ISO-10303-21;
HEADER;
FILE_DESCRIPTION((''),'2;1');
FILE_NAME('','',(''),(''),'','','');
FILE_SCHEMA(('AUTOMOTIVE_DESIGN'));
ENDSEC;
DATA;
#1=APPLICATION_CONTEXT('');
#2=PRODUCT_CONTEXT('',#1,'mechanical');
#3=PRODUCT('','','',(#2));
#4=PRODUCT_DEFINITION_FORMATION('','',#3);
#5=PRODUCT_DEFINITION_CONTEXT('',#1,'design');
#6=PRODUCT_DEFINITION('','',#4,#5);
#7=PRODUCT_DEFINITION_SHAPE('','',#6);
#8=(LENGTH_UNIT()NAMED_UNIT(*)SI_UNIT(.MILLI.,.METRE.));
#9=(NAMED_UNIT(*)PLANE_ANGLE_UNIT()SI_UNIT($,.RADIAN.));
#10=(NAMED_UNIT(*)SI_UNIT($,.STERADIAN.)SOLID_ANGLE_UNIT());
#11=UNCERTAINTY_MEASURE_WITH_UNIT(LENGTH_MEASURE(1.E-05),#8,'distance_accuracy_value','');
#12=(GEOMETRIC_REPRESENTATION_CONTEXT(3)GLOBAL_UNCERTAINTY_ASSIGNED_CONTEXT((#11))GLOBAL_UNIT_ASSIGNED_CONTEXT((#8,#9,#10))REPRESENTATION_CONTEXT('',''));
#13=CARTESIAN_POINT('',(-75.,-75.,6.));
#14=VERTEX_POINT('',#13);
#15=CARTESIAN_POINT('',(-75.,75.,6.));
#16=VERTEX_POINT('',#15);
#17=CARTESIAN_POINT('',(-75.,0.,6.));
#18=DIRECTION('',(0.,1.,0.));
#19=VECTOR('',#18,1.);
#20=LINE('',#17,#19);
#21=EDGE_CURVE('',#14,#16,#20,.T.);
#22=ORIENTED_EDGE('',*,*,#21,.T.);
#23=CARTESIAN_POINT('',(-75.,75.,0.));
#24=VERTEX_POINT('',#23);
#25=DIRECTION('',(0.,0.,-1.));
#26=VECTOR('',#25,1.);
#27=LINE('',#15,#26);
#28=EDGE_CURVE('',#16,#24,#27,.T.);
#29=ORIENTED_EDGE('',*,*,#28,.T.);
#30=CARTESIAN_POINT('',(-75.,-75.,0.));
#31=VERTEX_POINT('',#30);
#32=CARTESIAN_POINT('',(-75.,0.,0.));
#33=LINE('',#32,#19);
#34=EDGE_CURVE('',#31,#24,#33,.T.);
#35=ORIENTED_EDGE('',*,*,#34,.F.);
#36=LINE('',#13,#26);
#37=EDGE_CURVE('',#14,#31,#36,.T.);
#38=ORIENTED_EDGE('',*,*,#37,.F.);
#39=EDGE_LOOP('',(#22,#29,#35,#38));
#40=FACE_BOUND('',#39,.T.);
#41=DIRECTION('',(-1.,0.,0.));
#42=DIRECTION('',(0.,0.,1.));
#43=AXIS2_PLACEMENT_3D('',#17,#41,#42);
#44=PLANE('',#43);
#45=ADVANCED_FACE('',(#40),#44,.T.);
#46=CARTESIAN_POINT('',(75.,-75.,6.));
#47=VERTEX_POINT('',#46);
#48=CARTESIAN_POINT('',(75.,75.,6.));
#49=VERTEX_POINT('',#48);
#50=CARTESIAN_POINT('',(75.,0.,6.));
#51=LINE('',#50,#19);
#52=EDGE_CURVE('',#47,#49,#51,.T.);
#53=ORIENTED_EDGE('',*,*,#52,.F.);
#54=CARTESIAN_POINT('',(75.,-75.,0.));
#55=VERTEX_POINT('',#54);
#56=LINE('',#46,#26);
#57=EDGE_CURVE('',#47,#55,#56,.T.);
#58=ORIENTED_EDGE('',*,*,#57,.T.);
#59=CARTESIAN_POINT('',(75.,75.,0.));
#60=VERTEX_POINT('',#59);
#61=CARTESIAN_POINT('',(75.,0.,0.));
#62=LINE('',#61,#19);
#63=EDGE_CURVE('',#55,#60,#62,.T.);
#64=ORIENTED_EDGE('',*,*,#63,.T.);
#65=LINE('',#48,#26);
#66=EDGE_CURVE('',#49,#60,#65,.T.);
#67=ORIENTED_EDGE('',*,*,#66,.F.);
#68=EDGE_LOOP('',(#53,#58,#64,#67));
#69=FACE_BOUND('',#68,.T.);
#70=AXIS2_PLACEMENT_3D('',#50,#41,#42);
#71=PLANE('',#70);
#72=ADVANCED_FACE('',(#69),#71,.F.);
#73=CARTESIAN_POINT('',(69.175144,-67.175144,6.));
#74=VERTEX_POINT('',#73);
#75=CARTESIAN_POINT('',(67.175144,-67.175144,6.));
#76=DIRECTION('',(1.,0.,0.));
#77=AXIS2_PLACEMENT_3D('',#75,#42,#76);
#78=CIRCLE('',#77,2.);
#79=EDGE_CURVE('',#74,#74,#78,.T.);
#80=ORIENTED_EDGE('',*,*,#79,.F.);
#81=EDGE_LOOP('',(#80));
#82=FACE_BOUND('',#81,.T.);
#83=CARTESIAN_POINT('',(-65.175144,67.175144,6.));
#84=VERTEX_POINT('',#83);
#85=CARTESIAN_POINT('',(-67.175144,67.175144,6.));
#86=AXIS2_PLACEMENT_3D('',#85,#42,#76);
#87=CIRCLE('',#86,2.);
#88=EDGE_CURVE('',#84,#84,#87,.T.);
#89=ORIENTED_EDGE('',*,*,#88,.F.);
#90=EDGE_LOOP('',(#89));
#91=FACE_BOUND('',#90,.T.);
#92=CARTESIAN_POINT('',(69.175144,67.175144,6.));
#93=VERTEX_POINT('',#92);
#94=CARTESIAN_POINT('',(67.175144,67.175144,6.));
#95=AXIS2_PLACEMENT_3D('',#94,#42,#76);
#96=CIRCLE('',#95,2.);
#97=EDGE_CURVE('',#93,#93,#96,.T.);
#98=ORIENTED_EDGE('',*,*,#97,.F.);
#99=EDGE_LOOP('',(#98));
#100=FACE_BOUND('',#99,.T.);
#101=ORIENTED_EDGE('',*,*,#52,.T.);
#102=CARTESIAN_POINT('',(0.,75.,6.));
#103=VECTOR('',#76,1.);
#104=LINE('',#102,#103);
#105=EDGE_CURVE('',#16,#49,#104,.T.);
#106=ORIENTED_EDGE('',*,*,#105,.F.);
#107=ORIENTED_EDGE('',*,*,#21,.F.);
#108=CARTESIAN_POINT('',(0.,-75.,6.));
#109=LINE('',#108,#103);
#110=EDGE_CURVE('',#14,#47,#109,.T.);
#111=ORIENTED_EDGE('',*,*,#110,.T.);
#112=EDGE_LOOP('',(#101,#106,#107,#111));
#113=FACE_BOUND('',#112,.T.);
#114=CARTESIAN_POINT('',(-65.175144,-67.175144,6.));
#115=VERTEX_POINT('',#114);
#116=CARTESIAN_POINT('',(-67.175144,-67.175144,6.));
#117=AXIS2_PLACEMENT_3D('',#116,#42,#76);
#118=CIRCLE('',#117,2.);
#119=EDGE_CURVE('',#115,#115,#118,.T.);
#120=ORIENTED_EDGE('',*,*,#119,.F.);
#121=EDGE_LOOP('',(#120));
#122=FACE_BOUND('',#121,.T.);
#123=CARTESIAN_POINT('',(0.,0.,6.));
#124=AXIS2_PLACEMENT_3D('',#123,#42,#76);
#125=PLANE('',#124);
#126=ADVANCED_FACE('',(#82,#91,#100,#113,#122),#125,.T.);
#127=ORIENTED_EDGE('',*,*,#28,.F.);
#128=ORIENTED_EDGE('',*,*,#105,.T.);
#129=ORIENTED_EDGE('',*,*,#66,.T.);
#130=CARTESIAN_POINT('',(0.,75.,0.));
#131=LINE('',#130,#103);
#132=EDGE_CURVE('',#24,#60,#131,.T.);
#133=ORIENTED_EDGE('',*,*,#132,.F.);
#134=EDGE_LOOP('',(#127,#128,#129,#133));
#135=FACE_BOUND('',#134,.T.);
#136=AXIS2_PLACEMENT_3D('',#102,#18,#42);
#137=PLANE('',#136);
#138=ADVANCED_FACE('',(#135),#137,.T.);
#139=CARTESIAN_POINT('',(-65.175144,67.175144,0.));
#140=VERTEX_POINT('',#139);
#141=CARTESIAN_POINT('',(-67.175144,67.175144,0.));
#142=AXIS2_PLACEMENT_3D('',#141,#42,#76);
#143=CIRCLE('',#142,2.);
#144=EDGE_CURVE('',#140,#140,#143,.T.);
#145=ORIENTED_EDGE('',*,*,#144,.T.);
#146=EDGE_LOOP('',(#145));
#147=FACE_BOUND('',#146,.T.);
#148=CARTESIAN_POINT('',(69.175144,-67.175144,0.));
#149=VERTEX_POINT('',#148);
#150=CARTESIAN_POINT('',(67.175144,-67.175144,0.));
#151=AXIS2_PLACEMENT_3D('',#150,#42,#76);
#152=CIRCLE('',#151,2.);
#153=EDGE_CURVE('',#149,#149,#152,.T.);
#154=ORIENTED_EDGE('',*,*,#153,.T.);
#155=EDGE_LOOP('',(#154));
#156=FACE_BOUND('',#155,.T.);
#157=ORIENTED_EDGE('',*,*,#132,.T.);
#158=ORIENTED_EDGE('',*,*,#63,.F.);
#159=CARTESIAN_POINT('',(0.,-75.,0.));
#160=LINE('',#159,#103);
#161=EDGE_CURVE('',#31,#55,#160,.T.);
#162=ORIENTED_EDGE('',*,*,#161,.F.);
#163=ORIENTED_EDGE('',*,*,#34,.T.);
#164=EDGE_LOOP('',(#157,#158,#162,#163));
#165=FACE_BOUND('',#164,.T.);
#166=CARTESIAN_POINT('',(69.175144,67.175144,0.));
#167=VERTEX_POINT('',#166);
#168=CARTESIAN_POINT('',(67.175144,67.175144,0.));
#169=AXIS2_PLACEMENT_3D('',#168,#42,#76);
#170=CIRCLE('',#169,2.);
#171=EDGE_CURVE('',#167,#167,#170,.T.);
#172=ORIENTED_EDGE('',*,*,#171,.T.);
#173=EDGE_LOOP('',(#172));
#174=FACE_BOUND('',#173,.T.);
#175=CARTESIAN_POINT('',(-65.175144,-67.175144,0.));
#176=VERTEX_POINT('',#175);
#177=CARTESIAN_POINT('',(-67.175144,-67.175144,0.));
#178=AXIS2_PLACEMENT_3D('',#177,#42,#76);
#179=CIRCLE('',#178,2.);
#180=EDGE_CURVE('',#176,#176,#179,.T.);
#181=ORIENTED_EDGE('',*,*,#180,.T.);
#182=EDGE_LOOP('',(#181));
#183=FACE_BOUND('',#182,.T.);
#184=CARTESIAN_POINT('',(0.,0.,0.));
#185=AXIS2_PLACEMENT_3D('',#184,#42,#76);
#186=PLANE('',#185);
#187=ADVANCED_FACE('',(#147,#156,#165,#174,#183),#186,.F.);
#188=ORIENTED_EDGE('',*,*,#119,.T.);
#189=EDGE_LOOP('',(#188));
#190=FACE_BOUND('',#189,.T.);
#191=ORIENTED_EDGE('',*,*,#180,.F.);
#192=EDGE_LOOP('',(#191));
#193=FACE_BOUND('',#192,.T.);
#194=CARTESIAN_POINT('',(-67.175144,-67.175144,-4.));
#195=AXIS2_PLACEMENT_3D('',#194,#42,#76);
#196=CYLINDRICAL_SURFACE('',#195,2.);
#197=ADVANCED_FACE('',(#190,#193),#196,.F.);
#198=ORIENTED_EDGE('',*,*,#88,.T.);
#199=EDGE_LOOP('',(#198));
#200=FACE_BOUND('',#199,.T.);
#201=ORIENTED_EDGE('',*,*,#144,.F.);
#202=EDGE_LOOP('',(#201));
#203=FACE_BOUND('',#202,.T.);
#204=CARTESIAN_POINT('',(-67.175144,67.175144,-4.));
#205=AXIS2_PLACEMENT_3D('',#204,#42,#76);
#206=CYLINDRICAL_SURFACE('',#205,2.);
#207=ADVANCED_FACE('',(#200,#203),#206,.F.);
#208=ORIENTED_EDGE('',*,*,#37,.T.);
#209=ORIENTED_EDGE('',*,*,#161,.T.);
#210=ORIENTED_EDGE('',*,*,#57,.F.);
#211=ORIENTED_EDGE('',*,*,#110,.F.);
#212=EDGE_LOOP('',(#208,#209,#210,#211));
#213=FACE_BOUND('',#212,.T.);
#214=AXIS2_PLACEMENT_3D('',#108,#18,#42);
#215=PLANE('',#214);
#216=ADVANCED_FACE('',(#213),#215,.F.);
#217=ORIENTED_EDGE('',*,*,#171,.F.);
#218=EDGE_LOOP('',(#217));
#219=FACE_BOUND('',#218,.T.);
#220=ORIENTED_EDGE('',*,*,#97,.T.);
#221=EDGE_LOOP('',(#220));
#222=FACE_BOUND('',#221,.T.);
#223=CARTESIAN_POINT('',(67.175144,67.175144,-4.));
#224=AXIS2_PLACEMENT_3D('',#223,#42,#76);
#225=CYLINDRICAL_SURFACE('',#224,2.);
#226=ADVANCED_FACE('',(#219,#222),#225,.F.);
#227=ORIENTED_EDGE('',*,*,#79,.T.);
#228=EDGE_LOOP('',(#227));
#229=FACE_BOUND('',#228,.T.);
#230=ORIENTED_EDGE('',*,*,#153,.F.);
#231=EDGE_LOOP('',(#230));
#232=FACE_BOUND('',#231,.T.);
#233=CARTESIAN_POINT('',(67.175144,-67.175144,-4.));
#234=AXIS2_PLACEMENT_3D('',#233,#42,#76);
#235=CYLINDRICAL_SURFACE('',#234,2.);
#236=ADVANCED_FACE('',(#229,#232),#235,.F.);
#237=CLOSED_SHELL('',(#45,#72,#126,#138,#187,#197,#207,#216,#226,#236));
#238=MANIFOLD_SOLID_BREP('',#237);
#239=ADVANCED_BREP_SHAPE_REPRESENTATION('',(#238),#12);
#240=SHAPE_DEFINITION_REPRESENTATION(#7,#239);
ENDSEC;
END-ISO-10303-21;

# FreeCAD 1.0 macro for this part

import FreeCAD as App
import Part
import Sketcher

doc = App.newDocument("Part")
body = doc.addObject("PartDesign::Body", "Body")

# Sketch on XY plane
sketch1 = doc.addObject("Sketcher::SketchObject", "Sketch")
body.addObject(sketch1)
sketch1.AttachmentSupport = (doc.XY_Plane, [""])
sketch1.MapMode = "FlatFace"
sketch1.addGeometry(Part.LineSegment(App.Vector(-75, 75, 0), App.Vector(-75, -75, 0)), False)
sketch1.addGeometry(Part.LineSegment(App.Vector(-75, -75, 0), App.Vector(75, -75, 0)), False)
sketch1.addGeometry(Part.LineSegment(App.Vector(75, -75, 0), App.Vector(75, 75, 0)), False)
sketch1.addGeometry(Part.LineSegment(App.Vector(75, 75, 0), App.Vector(-75, 75, 0)), False)
sketch1.addConstraint(Sketcher.Constraint("Coincident", 0, 2, 1, 1))
sketch1.addConstraint(Sketcher.Constraint("Coincident", 1, 2, 2, 1))
sketch1.addConstraint(Sketcher.Constraint("Coincident", 2, 2, 3, 1))
sketch1.addConstraint(Sketcher.Constraint("Coincident", 3, 2, 0, 1))
sketch1.addConstraint(Sketcher.Constraint("Vertical", 0))
sketch1.addConstraint(Sketcher.Constraint("Horizontal", 1))
sketch1.addConstraint(Sketcher.Constraint("Vertical", 2))
sketch1.addConstraint(Sketcher.Constraint("Horizontal", 3))
sketch1.addConstraint(Sketcher.Constraint("Symmetric", 0, 2, 2, 2, -1, 1))
sketch1.addConstraint(Sketcher.Constraint("Equal", 3, 0))
sketch1.addConstraint(Sketcher.Constraint("DistanceX", 1, 1, 1, 2, 150.0))
pad1 = doc.addObject("PartDesign::Pad", "Pad")
body.addObject(pad1)
pad1.Profile = sketch1
pad1.Length = 6

# Sketch on XY plane
sketch2 = doc.addObject("Sketcher::SketchObject", "Sketch001")
body.addObject(sketch2)
sketch2.AttachmentSupport = (doc.XY_Plane, [""])
sketch2.MapMode = "FlatFace"
sketch2.AttachmentOffset = App.Placement(App.Vector(0, 0, 6), App.Rotation())
sketch2.addGeometry(Part.Circle(App.Vector(67.2, 67.2, 0), App.Vector(0, 0, 1), 2), False)
sketch2.addGeometry(Part.Circle(App.Vector(67.2, -67.2, 0), App.Vector(0, 0, 1), 2), False)
sketch2.addGeometry(Part.Circle(App.Vector(-67.2, -67.2, 0), App.Vector(0, 0, 1), 2), False)
sketch2.addGeometry(Part.Circle(App.Vector(-67.2, 67.2, 0), App.Vector(0, 0, 1), 2), False)
sketch2.addConstraint(Sketcher.Constraint("Equal", 0, 1))
sketch2.addConstraint(Sketcher.Constraint("Equal", 1, 2))
sketch2.addConstraint(Sketcher.Constraint("Equal", 2, 3))
sketch2.addConstraint(Sketcher.Constraint("Symmetric", 0, 3, 2, 3, -1, 1))
sketch2.addConstraint(Sketcher.Constraint("Symmetric", 1, 3, 3, 3, -1, 1))
sketch2.addConstraint(Sketcher.Constraint("Symmetric", 1, 3, 2, 3, -2))
sketch2.addConstraint(Sketcher.Constraint("Diameter", 0, 4.0))
sketch2.addConstraint(Sketcher.Constraint("DistanceY", 1, 3, 0, 3, 134.350288))
sketch2.addConstraint(Sketcher.Constraint("DistanceX", 2, 3, 1, 3, 134.350288))
pocket1 = doc.addObject("PartDesign::Pocket", "Pocket")
body.addObject(pocket1)
pocket1.Profile = sketch2
pocket1.Length = 10

doc.recompute()
